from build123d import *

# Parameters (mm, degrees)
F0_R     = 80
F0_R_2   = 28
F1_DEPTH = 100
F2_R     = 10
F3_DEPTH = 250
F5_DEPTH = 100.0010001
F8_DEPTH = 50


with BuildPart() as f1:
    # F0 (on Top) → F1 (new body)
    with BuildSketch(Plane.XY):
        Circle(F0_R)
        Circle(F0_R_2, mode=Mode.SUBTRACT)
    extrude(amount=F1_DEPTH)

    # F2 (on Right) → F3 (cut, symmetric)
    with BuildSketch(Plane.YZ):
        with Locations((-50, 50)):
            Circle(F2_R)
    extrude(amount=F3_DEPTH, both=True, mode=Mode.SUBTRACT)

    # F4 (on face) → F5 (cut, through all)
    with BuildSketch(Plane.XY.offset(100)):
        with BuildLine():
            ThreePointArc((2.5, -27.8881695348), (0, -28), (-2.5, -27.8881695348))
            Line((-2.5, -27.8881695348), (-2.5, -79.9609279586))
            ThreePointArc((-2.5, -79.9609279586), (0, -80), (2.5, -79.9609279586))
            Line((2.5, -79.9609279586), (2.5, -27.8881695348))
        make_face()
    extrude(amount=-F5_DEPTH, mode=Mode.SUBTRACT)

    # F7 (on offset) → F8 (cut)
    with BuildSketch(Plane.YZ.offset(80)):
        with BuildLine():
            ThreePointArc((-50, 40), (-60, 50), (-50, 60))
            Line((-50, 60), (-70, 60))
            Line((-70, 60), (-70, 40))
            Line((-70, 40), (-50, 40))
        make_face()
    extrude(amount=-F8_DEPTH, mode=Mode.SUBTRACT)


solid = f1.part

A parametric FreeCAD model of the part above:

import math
import FreeCAD as App
import Part
import Sketcher

V = App.Vector

doc = App.newDocument("Part")
body = doc.addObject("PartDesign::Body", "Body")

# Sketch on XY plane
sketch1 = body.newObject("Sketcher::SketchObject", "Sketch")
sketch1.AttachmentSupport = (doc.getObject("XY_Plane"), [""])
sketch1.MapMode = "FlatFace"
sketch1.addGeometry([
    Part.Circle(V(0, 0, 0), V(0, 0, 1), 80),
    Part.Circle(V(0, 0, 0), V(0, 0, 1), 28),
], False)
sketch1.addConstraint([
    Sketcher.Constraint("Coincident", 0, 3, -1, 1),
    Sketcher.Constraint("Coincident", 1, 3, -1, 1),
    Sketcher.Constraint("Diameter", 0, 160.0),
    Sketcher.Constraint("Diameter", 1, 56.0),
])
pad1 = body.newObject("PartDesign::Pad", "Pad")
pad1.Profile = sketch1
pad1.Length = 100

# Sketch on YZ plane
sketch2 = body.newObject("Sketcher::SketchObject", "Sketch001")
sketch2.AttachmentSupport = (doc.getObject("YZ_Plane"), [""])
sketch2.MapMode = "FlatFace"
sketch2.addGeometry(Part.Circle(V(-50, 50, 0), V(0, 0, 1), 10), False)
sketch2.addConstraint([
    Sketcher.Constraint("Diameter", 0, 20.0),
    Sketcher.Constraint("DistanceX", 0, 3, -1, 1, 50.0),
    Sketcher.Constraint("DistanceY", -1, 1, 0, 3, 50.0),
])
pocket1 = body.newObject("PartDesign::Pocket", "Pocket")
pocket1.Profile = sketch2
pocket1.Length = 500
pocket1.Midplane = True

# Sketch on XY plane
sketch3 = body.newObject("Sketcher::SketchObject", "Sketch002")
sketch3.AttachmentSupport = (doc.getObject("XY_Plane"), [""])
sketch3.MapMode = "FlatFace"
sketch3.AttachmentOffset = App.Placement(V(0, 0, 100), App.Rotation())
sketch3.addGeometry([
    Part.ArcOfCircle(Part.Circle(V(0, 0, 0), V(0, 0, 1), 28), math.radians(-95.12), math.radians(-84.88)),
    Part.LineSegment(V(-2, -28, 0), V(-2, -80, 0)),
    Part.ArcOfCircle(Part.Circle(V(0, 0, 0), V(0, 0, 1), 80), math.radians(-91.79), math.radians(-88.21)),
    Part.LineSegment(V(2, -80, 0), V(2, -28, 0)),
], False)
sketch3.addConstraint([
    Sketcher.Constraint("Coincident", 0, 1, 1, 1),
    Sketcher.Constraint("Coincident", 1, 2, 2, 1),
    Sketcher.Constraint("Coincident", 2, 2, 3, 1),
    Sketcher.Constraint("Coincident", 3, 2, 0, 2),
    Sketcher.Constraint("Vertical", 1),
    Sketcher.Constraint("Vertical", 3),
    Sketcher.Constraint("Coincident", 0, 3, -1, 1),
    Sketcher.Constraint("Coincident", 2, 3, -1, 1),
    Sketcher.Constraint("Horizontal", 1, 2, 2, 2),
    Sketcher.Constraint("Radius", 0, 28.0),
    Sketcher.Constraint("Radius", 2, 80.0),
    Sketcher.Constraint("DistanceX", 1, 2, 2, 2, 5.0),
])
pocket2 = body.newObject("PartDesign::Pocket", "Pocket001")
pocket2.Profile = sketch3
pocket2.Type = "ThroughAll"

# Sketch on YZ plane
sketch4 = body.newObject("Sketcher::SketchObject", "Sketch003")
sketch4.AttachmentSupport = (doc.getObject("YZ_Plane"), [""])
sketch4.MapMode = "FlatFace"
sketch4.AttachmentOffset = App.Placement(V(0, 0, 80), App.Rotation())
sketch4.addGeometry([
    Part.ArcOfCircle(Part.Circle(V(-50, 50, 0), V(0, 0, 1), 10), math.radians(90), math.radians(270)),
    Part.LineSegment(V(-50, 60, 0), V(-70, 60, 0)),
    Part.LineSegment(V(-70, 60, 0), V(-70, 40, 0)),
    Part.LineSegment(V(-70, 40, 0), V(-50, 40, 0)),
], False)
sketch4.addConstraint([
    Sketcher.Constraint("Tangent", 0, 1, 1, 1),
    Sketcher.Constraint("Coincident", 1, 2, 2, 1),
    Sketcher.Constraint("Coincident", 2, 2, 3, 1),
    Sketcher.Constraint("Tangent", 3, 2, 0, 2),
    Sketcher.Constraint("Horizontal", 1),
    Sketcher.Constraint("Vertical", 2),
    Sketcher.Constraint("Horizontal", 3),
    Sketcher.Constraint("Equal", 3, 2),
    Sketcher.Constraint("Radius", 0, 10.0),
    Sketcher.Constraint("DistanceX", 0, 3, -1, 1, 50.0),
    Sketcher.Constraint("DistanceY", -1, 1, 0, 3, 50.0),
])
pocket3 = body.newObject("PartDesign::Pocket", "Pocket002")
pocket3.Profile = sketch4
pocket3.Length = 50

doc.recompute()
